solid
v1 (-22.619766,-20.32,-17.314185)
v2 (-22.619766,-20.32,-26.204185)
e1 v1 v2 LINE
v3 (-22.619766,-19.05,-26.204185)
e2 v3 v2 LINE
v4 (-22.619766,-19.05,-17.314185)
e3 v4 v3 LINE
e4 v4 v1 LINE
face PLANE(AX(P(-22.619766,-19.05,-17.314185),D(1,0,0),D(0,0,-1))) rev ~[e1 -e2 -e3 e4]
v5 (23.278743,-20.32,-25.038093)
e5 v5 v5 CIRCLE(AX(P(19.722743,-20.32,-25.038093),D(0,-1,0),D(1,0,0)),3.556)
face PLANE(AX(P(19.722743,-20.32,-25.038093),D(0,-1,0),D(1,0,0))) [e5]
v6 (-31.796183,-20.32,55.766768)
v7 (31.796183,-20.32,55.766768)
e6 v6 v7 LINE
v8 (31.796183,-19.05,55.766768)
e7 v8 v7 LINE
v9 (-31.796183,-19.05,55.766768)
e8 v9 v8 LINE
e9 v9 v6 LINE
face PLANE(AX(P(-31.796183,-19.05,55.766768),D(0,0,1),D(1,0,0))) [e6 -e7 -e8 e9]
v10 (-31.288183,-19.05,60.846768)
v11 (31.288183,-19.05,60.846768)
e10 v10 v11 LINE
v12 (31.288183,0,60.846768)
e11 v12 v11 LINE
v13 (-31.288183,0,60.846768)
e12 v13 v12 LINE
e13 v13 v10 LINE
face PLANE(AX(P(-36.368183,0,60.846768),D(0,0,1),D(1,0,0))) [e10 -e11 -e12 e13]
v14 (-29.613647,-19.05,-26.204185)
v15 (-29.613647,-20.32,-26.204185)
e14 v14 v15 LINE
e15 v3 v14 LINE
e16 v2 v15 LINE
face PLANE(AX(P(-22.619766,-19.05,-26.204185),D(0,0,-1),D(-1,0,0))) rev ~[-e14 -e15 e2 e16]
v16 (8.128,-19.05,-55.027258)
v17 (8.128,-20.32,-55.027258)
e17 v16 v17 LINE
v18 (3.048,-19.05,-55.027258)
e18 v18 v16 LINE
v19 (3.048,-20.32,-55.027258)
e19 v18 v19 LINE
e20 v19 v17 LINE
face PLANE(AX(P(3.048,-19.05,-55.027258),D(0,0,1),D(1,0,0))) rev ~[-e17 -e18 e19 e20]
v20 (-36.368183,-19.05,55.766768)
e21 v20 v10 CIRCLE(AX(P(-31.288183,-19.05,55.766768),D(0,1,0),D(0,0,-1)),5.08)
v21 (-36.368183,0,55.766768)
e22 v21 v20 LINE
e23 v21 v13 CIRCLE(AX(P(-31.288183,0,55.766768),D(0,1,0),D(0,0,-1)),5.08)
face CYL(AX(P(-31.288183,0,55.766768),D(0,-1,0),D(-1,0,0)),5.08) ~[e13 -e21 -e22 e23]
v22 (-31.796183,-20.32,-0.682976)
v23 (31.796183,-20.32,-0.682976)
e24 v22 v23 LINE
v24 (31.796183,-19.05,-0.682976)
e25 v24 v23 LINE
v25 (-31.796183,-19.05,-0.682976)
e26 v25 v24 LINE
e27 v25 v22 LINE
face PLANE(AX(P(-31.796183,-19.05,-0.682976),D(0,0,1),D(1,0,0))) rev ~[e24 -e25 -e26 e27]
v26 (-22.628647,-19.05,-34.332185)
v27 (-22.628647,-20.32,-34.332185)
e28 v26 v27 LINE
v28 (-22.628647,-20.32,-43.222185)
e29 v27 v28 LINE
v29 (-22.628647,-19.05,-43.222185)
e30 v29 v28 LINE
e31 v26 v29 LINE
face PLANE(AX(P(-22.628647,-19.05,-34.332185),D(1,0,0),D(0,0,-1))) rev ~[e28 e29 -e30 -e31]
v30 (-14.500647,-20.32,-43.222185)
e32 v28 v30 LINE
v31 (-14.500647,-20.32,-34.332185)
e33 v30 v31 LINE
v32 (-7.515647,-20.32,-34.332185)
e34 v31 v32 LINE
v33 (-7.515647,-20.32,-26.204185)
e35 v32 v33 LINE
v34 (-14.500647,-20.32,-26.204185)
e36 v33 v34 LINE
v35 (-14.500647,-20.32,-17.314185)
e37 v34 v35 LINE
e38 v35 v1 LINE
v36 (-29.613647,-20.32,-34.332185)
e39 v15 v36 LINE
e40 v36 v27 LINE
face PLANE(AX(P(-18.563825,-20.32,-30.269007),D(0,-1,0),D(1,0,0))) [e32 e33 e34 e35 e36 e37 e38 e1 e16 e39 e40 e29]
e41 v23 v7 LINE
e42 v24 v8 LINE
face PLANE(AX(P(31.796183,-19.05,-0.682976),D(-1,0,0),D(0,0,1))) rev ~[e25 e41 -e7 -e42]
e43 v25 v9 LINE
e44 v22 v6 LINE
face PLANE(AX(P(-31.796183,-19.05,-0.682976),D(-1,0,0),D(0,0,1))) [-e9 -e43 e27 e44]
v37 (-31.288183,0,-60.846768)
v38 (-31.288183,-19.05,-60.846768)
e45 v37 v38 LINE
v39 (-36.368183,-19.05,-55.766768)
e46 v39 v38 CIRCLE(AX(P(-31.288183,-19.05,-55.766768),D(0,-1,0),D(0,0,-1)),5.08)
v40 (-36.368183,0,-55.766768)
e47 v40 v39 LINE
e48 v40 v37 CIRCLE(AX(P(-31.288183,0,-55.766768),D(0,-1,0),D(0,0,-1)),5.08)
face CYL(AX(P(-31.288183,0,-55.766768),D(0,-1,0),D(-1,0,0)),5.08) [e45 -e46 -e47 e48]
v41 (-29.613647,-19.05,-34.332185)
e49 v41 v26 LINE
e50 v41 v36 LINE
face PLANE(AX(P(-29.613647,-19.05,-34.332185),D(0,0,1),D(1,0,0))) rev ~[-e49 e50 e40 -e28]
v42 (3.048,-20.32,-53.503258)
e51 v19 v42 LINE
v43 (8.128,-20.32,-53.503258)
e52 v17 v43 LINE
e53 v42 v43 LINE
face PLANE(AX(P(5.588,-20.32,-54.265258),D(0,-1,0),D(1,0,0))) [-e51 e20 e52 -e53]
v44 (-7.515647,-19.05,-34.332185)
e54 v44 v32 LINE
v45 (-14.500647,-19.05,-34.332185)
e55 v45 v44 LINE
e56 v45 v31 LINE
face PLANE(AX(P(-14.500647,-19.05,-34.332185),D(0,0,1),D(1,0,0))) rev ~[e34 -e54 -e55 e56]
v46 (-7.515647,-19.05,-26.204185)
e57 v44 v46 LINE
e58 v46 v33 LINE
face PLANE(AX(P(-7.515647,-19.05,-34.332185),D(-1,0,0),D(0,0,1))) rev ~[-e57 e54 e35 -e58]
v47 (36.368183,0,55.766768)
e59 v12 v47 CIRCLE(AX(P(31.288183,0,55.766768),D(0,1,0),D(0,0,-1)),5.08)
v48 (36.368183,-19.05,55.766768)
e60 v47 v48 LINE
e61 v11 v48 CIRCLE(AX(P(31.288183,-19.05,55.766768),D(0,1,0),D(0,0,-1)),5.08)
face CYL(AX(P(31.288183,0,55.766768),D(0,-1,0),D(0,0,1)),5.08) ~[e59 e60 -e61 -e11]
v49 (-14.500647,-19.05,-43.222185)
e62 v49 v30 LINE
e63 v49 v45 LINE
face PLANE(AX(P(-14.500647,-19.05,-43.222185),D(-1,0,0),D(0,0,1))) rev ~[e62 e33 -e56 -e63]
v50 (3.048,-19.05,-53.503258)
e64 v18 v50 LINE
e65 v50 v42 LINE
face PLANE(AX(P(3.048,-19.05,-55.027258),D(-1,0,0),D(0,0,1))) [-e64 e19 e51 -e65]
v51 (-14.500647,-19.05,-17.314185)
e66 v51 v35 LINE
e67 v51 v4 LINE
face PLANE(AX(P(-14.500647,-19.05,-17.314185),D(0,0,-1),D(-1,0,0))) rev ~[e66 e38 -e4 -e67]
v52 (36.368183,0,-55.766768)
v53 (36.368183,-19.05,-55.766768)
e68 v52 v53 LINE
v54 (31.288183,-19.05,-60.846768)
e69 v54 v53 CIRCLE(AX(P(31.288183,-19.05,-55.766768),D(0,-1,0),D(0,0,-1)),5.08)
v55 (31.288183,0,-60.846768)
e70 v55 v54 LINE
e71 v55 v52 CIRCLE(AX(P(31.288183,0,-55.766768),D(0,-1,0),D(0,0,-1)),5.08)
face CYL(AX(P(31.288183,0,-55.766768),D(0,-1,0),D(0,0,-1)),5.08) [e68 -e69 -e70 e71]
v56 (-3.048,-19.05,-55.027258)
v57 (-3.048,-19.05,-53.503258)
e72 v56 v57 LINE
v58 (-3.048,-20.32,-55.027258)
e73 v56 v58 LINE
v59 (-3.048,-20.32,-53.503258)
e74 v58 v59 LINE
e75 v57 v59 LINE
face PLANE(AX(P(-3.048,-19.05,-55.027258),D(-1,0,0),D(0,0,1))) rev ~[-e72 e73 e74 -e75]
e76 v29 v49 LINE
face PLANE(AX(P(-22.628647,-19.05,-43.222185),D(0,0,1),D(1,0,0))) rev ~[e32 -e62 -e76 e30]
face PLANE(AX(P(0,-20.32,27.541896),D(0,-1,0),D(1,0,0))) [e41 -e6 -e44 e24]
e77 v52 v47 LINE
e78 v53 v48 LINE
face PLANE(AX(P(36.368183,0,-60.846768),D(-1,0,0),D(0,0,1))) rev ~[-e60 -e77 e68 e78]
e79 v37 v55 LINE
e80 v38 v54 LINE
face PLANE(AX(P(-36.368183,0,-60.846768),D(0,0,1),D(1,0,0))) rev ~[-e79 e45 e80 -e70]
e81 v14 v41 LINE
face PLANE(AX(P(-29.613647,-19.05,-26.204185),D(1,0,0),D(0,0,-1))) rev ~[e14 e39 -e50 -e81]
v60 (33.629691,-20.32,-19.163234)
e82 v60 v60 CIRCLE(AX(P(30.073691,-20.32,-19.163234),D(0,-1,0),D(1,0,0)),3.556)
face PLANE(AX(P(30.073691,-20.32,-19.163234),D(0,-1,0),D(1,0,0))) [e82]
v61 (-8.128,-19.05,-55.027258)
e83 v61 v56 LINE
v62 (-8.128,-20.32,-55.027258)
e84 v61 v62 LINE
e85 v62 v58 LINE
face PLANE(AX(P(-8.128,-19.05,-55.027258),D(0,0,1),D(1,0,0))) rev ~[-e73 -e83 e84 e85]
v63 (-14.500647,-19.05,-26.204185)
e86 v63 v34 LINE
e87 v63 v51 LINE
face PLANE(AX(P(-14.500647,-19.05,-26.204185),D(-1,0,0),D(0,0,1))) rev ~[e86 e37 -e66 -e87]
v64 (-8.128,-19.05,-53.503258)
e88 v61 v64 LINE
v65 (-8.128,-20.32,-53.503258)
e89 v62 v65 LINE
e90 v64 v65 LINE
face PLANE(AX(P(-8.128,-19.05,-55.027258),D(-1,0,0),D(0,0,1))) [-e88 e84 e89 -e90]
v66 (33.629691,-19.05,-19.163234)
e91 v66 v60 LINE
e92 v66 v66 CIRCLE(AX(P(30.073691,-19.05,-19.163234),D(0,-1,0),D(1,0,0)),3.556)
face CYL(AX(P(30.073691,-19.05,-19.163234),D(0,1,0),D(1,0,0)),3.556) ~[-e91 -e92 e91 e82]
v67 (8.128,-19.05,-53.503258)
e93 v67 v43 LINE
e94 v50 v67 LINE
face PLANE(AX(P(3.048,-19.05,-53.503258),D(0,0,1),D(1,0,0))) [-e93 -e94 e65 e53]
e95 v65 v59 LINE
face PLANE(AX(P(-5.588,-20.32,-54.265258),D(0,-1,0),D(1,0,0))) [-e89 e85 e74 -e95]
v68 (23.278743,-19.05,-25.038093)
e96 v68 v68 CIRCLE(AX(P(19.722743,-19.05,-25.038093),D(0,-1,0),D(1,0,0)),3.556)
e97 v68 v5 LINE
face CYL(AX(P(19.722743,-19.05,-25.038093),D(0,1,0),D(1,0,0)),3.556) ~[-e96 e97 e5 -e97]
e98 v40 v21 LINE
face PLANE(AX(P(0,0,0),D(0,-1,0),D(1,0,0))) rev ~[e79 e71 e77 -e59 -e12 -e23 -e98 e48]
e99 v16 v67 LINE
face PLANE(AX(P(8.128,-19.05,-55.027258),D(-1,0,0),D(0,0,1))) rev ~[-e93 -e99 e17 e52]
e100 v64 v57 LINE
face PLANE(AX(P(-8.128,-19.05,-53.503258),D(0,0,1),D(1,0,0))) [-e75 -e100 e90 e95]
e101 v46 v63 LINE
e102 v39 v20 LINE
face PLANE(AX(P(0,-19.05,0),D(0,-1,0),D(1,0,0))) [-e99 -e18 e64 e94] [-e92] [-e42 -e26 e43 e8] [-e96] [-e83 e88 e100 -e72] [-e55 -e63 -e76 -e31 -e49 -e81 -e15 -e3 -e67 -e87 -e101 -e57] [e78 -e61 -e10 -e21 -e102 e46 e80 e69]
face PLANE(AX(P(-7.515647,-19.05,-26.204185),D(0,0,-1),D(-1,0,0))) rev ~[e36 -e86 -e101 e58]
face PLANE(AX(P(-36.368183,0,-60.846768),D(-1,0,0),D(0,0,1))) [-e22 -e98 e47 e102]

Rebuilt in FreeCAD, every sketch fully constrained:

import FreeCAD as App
import Part
import Sketcher
from FreeCAD import Vector
Q = App.Units.Quantity


def edges_at(feature, points):
    """Names of the edges that pass closest to the given points."""
    edges = feature.Shape.Edges
    near = lambda p: min(range(len(edges)), key=lambda i: edges[i].distToShape(Part.Vertex(*p))[0])
    return sorted({f"Edge{near(p) + 1}" for p in points})

doc = App.newDocument("Part")
body = doc.addObject("PartDesign::Body", "Body")

# Sketch on XZ plane
sketch1 = body.newObject("Sketcher::SketchObject", "Sketch")
sketch1.AttachmentSupport = (doc.getObject("XZ_Plane"), [""])
sketch1.MapMode = "FlatFace"
sketch1.addGeometry([
    Part.LineSegment(Vector(-36.368183, 60.846768, 0), Vector(-36.368183, -60.846768, 0)),
    Part.LineSegment(Vector(-36.368183, -60.846768, 0), Vector(36.368183, -60.846768, 0)),
    Part.LineSegment(Vector(36.368183, -60.846768, 0), Vector(36.368183, 60.846768, 0)),
    Part.LineSegment(Vector(36.368183, 60.846768, 0), Vector(-36.368183, 60.846768, 0)),
], False)
sketch1.addConstraint([
    Sketcher.Constraint("Coincident", 0, 2, 1, 1),
    Sketcher.Constraint("Coincident", 1, 2, 2, 1),
    Sketcher.Constraint("Coincident", 2, 2, 3, 1),
    Sketcher.Constraint("Coincident", 3, 2, 0, 1),
    Sketcher.Constraint("Vertical", 0),
    Sketcher.Constraint("Horizontal", 1),
    Sketcher.Constraint("Vertical", 2),
    Sketcher.Constraint("Horizontal", 3),
    Sketcher.Constraint("Symmetric", 0, 2, 2, 2, -1, 1),
    Sketcher.Constraint("DistanceX", 1, 1, 1, 2, Q("72.736366 mm")),
    Sketcher.Constraint("DistanceY", 0, 2, 0, 1, Q("121.693536 mm")),
])
pad1 = body.newObject("PartDesign::Pad", "Pad")
pad1.Profile = sketch1
pad1.Length = Q("0.75 in")

# Sketch on XZ plane
sketch2 = body.newObject("Sketcher::SketchObject", "Sketch001")
sketch2.AttachmentSupport = (doc.getObject("XZ_Plane"), [""])
sketch2.MapMode = "FlatFace"
sketch2.AttachmentOffset = App.Placement(Vector(0, 0, 0.75 * 25.4), App.Rotation())
sketch2.addGeometry([
    Part.LineSegment(Vector(-31.796183, 55.766768, 0), Vector(-31.796183, -0.682976, 0)),  # 0
    Part.LineSegment(Vector(-31.796183, -0.682976, 0), Vector(31.796183, -0.682976, 0)),  # 1
    Part.LineSegment(Vector(31.796183, -0.682976, 0), Vector(31.796183, 55.766768, 0)),  # 2
    Part.LineSegment(Vector(31.796183, 55.766768, 0), Vector(-31.796183, 55.766768, 0)),  # 3
    Part.LineSegment(Vector(-14.500647, -17.314185, 0), Vector(-22.619766, -17.314185, 0)),  # 4
    Part.LineSegment(Vector(-22.619766, -17.314185, 0), Vector(-22.619766, -26.204185, 0)),  # 5
    Part.LineSegment(Vector(-22.619766, -26.204185, 0), Vector(-29.613647, -26.204185, 0)),  # 6
    Part.LineSegment(Vector(-29.613647, -26.204185, 0), Vector(-29.613647, -34.332185, 0)),  # 7
    Part.LineSegment(Vector(-29.613647, -34.332185, 0), Vector(-22.628647, -34.332185, 0)),  # 8
    Part.LineSegment(Vector(-22.628647, -34.332185, 0), Vector(-22.628647, -43.222185, 0)),  # 9
    Part.LineSegment(Vector(-22.628647, -43.222185, 0), Vector(-14.500647, -43.222185, 0)),  # 10
    Part.LineSegment(Vector(-14.500647, -43.222185, 0), Vector(-14.500647, -34.332185, 0)),  # 11
    Part.LineSegment(Vector(-14.500647, -34.332185, 0), Vector(-7.515647, -34.332185, 0)),  # 12
    Part.LineSegment(Vector(-7.515647, -34.332185, 0), Vector(-7.515647, -26.204185, 0)),  # 13
    Part.LineSegment(Vector(-7.515647, -26.204185, 0), Vector(-14.500647, -26.204185, 0)),  # 14
    Part.LineSegment(Vector(-14.500647, -26.204185, 0), Vector(-14.500647, -17.314185, 0)),  # 15
    Part.Circle(Vector(30.073691, -19.163234, 0), Vector(0, 0, 1), 3.556),  # 16
    Part.Circle(Vector(19.722743, -25.038093, 0), Vector(0, 0, 1), 3.556),  # 17
    Part.LineSegment(Vector(-8.128, -53.503258, 0), Vector(-8.128, -55.027258, 0)),  # 18
    Part.LineSegment(Vector(-8.128, -55.027258, 0), Vector(-3.048, -55.027258, 0)),  # 19
    Part.LineSegment(Vector(-3.048, -55.027258, 0), Vector(-3.048, -53.503258, 0)),  # 20
    Part.LineSegment(Vector(-3.048, -53.503258, 0), Vector(-8.128, -53.503258, 0)),  # 21
    Part.LineSegment(Vector(3.048, -53.503258, 0), Vector(3.048, -55.027258, 0)),  # 22
    Part.LineSegment(Vector(3.048, -55.027258, 0), Vector(8.128, -55.027258, 0)),  # 23
    Part.LineSegment(Vector(8.128, -55.027258, 0), Vector(8.128, -53.503258, 0)),  # 24
    Part.LineSegment(Vector(8.128, -53.503258, 0), Vector(3.048, -53.503258, 0)),  # 25
], False)
sketch2.addConstraint([
    Sketcher.Constraint("Coincident", 0, 2, 1, 1),
    Sketcher.Constraint("Coincident", 1, 2, 2, 1),
    Sketcher.Constraint("Coincident", 2, 2, 3, 1),
    Sketcher.Constraint("Coincident", 3, 2, 0, 1),
    Sketcher.Constraint("Coincident", 4, 2, 5, 1),
    Sketcher.Constraint("Coincident", 5, 2, 6, 1),
    Sketcher.Constraint("Coincident", 6, 2, 7, 1),
    Sketcher.Constraint("Coincident", 7, 2, 8, 1),
    Sketcher.Constraint("Coincident", 8, 2, 9, 1),
    Sketcher.Constraint("Coincident", 9, 2, 10, 1),
    Sketcher.Constraint("Coincident", 10, 2, 11, 1),
    Sketcher.Constraint("Coincident", 11, 2, 12, 1),
    Sketcher.Constraint("Coincident", 12, 2, 13, 1),
    Sketcher.Constraint("Coincident", 13, 2, 14, 1),
    Sketcher.Constraint("Coincident", 14, 2, 15, 1),
    Sketcher.Constraint("Coincident", 15, 2, 4, 1),
    Sketcher.Constraint("Coincident", 18, 2, 19, 1),
    Sketcher.Constraint("Coincident", 19, 2, 20, 1),
    Sketcher.Constraint("Coincident", 20, 2, 21, 1),
    Sketcher.Constraint("Coincident", 21, 2, 18, 1),
    Sketcher.Constraint("Coincident", 22, 2, 23, 1),
    Sketcher.Constraint("Coincident", 23, 2, 24, 1),
    Sketcher.Constraint("Coincident", 24, 2, 25, 1),
    Sketcher.Constraint("Coincident", 25, 2, 22, 1),
    Sketcher.Constraint("Vertical", 0),
    Sketcher.Constraint("Horizontal", 1),
    Sketcher.Constraint("Vertical", 2),
    Sketcher.Constraint("Horizontal", 3),
    Sketcher.Constraint("Horizontal", 4),
    Sketcher.Constraint("Vertical", 5),
    Sketcher.Constraint("Horizontal", 6),
    Sketcher.Constraint("Vertical", 7),
    Sketcher.Constraint("Horizontal", 8),
    Sketcher.Constraint("Vertical", 9),
    Sketcher.Constraint("Horizontal", 10),
    Sketcher.Constraint("Vertical", 11),
    Sketcher.Constraint("Horizontal", 12),
    Sketcher.Constraint("Vertical", 13),
    Sketcher.Constraint("Horizontal", 14),
    Sketcher.Constraint("Vertical", 15),
    Sketcher.Constraint("Vertical", 18),
    Sketcher.Constraint("Horizontal", 19),
    Sketcher.Constraint("Vertical", 20),
    Sketcher.Constraint("Horizontal", 21),
    Sketcher.Constraint("Vertical", 22),
    Sketcher.Constraint("Horizontal", 23),
    Sketcher.Constraint("Vertical", 24),
    Sketcher.Constraint("Horizontal", 25),
    Sketcher.Constraint("Equal", 16, 17),
    Sketcher.Constraint("Symmetric", 19, 2, 22, 2, -2),
    Sketcher.Constraint("Symmetric", 21, 2, 24, 2, -2),
    Sketcher.Constraint("Horizontal", 8, 2, 11, 2),
    Sketcher.Constraint("Horizontal", 6, 2, 13, 2),
    Sketcher.Constraint("Vertical", 11, 2, 14, 2),
    Sketcher.Constraint("Equal", 8, 12),
    Sketcher.Constraint("Equal", 10, 7),
    Sketcher.Constraint("Equal", 5, 9),
    Sketcher.Constraint("Diameter", 16, Q("0.28 in")),
    Sketcher.Constraint("DistanceX", 19, 1, 19, 2, Q("0.2 in")),
    Sketcher.Constraint("DistanceX", 10, 1, 10, 2, Q("0.32 in")),
    Sketcher.Constraint("DistanceY", 5, 2, 5, 1, Q("0.35 in")),
    Sketcher.Constraint("DistanceY", 18, 2, 18, 1, Q("0.06 in")),
    Sketcher.Constraint("DistanceX", 8, 1, 8, 2, Q("0.275 in")),
    Sketcher.Constraint("DistanceX", 18, 2, -1, 1, Q("0.32 in")),
    Sketcher.Constraint("DistanceY", 16, 3, 2, 2, Q("2.9500001 in")),
    Sketcher.Constraint("DistanceX", 4, 2, 4, 1, Q("8.119119 mm")),
    Sketcher.Constraint("DistanceX", 1, 1, 1, 2, Q("63.592366 mm")),
    Sketcher.Constraint("DistanceY", 0, 2, 0, 1, Q("56.449744 mm")),
    Sketcher.Constraint("DistanceX", -1, 1, 16, 3, Q("30.073691 mm")),
    Sketcher.Constraint("DistanceY", 18, 2, -1, 1, Q("55.027258 mm")),
    Sketcher.Constraint("DistanceY", 17, 3, 16, 3, Q("5.874859 mm")),
    Sketcher.Constraint("DistanceX", 16, 3, 1, 2, Q("1.722492 mm")),
    Sketcher.Constraint("DistanceX", 17, 3, 1, 2, Q("12.07344 mm")),
    Sketcher.Constraint("DistanceY", 4, 2, 0, 2, Q("16.631209 mm")),
    Sketcher.Constraint("DistanceX", 4, 2, 17, 3, Q("42.342509 mm")),
    Sketcher.Constraint("DistanceY", 16, 3, -1, 1, Q("19.163234 mm")),
])
pad2 = body.newObject("PartDesign::Pad", "Pad001")
pad2.Profile = sketch2
pad2.Length = Q("0.05 in")
doc.recompute()

fillet = body.newObject("PartDesign::Fillet", "Fillet")
fillet.Base = (pad2, edges_at(pad2, [
    (-36.368, -9.525, 60.847),
    (36.368, -9.525, 60.847),
    (36.368, -9.525, -60.847),
    (-36.368, -9.525, -60.847),
]))
fillet.Radius = Q("0.2 in")

doc.recompute()
